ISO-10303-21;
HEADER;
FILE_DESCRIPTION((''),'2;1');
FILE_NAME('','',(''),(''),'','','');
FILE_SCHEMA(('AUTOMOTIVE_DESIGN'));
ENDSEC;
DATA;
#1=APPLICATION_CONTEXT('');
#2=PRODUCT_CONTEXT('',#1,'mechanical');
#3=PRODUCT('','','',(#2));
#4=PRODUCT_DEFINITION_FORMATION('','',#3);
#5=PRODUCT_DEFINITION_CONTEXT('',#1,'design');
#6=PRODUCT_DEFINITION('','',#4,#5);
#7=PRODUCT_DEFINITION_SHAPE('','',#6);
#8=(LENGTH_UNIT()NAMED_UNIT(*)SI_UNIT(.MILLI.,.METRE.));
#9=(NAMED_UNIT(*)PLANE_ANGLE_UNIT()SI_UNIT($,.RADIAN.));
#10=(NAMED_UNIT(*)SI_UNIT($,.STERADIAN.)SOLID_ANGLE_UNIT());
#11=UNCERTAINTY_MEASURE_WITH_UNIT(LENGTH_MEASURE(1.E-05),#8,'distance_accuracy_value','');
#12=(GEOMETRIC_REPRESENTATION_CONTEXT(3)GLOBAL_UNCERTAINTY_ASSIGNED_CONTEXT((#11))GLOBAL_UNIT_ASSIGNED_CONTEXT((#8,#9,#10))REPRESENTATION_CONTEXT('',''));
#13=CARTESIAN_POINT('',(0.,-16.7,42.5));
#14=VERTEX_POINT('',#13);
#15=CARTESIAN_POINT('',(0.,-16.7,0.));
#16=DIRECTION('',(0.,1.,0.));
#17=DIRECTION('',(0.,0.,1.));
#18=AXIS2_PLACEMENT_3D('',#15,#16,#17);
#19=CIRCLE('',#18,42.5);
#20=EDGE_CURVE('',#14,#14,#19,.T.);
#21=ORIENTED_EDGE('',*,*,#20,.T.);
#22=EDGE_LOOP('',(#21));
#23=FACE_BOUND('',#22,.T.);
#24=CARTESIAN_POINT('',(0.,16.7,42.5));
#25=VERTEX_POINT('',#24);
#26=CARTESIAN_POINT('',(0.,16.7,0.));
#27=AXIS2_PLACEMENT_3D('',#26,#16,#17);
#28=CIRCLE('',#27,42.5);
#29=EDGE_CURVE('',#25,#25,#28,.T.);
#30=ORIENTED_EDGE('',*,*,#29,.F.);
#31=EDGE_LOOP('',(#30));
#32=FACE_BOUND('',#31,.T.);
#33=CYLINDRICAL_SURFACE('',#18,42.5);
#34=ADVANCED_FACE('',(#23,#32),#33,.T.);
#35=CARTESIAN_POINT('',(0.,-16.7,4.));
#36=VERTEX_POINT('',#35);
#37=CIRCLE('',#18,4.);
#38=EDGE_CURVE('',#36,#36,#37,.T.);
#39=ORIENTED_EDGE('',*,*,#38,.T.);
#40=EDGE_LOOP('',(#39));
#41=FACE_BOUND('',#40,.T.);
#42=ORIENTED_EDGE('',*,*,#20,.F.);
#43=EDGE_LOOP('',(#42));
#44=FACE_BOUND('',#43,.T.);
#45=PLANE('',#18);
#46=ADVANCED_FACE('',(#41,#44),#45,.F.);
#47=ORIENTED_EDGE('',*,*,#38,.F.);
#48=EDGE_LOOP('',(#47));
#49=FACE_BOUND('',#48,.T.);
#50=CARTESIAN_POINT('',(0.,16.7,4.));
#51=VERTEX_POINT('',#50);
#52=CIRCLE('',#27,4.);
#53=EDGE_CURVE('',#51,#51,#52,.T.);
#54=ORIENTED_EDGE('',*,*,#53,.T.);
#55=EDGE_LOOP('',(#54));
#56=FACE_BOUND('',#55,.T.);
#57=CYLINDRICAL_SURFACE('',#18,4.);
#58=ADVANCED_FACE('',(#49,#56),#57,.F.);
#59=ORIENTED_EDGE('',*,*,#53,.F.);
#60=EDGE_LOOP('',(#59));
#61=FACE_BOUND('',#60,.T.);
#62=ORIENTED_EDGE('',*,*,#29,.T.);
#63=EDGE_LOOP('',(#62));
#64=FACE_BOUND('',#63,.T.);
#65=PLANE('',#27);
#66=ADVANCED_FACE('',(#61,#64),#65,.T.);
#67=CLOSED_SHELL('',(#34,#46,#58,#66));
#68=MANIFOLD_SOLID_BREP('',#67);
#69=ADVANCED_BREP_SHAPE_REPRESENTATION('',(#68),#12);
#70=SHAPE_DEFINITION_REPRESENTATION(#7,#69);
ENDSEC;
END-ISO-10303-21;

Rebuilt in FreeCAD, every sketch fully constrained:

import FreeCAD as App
import Part
import Sketcher

doc = App.newDocument("Part")
body = doc.addObject("PartDesign::Body", "Body")

# Sketch on XZ plane
sketch1 = body.newObject("Sketcher::SketchObject", "Sketch")
sketch1.AttachmentSupport = (doc.getObject("XZ_Plane"), [""])
sketch1.MapMode = "FlatFace"
sketch1.addGeometry([
    Part.Circle(App.Vector(0, 0, 0), App.Vector(0, 0, 1), 42.5),
    Part.Circle(App.Vector(0, 0, 0), App.Vector(0, 0, 1), 4),
], False)
sketch1.addConstraint([
    Sketcher.Constraint("Coincident", 0, 3, -1, 1),
    Sketcher.Constraint("Coincident", 1, 3, -1, 1),
    Sketcher.Constraint("Diameter", 0, 85.0),
    Sketcher.Constraint("Diameter", 1, 8.0),
])
pad1 = body.newObject("PartDesign::Pad", "Pad")
pad1.Profile = sketch1
pad1.Type = "TwoLengths"
pad1.Length = 16.7
pad1.Length2 = 16.7
pad1.Reversed = True

doc.recompute()
